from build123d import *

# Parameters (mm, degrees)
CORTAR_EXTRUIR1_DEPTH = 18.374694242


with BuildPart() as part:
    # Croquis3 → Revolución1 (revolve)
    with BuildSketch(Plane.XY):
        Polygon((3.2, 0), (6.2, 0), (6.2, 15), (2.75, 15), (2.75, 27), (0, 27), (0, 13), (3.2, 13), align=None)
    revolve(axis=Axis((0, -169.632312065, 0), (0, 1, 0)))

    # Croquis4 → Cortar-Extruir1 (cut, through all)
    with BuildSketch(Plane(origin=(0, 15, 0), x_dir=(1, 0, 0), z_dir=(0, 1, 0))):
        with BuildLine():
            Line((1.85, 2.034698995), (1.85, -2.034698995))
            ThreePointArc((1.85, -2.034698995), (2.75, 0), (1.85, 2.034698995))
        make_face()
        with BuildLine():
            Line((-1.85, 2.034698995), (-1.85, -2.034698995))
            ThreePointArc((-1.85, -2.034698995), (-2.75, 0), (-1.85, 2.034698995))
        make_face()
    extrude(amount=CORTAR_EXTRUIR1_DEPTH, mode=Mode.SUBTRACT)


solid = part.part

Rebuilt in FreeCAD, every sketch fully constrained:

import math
import FreeCAD as App
import Part
import Sketcher

V = App.Vector

doc = App.newDocument("Part")
params = doc.addObject("Spreadsheet::Sheet", "Params")
for row, (alias, value) in enumerate([
    ("sketch1_width", "3 mm"),
    ("sketch1_height", "15 mm"),
    ("sketch1_height2", "12 mm"),
    ("sketch1_height3", "14 mm"),
    ("sketch1_width2", "3.2 mm"),
    ("revolution_angle", "360 deg"),
    ("sketch2_radius", "2.75 mm"),
], start=1):
    params.set(f"A{row}", alias)
    params.set(f"B{row}", "=" + value)
    params.setAlias(f"B{row}", alias)

body = doc.addObject("PartDesign::Body", "Body")

# Sketch on XY plane
sketch1 = doc.addObject("Sketcher::SketchObject", "Sketch")
body.addObject(sketch1)
sketch1.AttachmentSupport = (doc.XY_Plane, [""])
sketch1.MapMode = "FlatFace"
sketch1.addGeometry(Part.LineSegment(V(3.2, 0, 0), V(6.2, 0, 0)), False)
sketch1.addGeometry(Part.LineSegment(V(6.2, 0, 0), V(6.2, 15, 0)), False)
sketch1.addGeometry(Part.LineSegment(V(6.2, 15, 0), V(2.75, 15, 0)), False)
sketch1.addGeometry(Part.LineSegment(V(2.75, 15, 0), V(2.75, 27, 0)), False)
sketch1.addGeometry(Part.LineSegment(V(2.75, 27, 0), V(0, 27, 0)), False)
sketch1.addGeometry(Part.LineSegment(V(0, 27, 0), V(0, 13, 0)), False)
sketch1.addGeometry(Part.LineSegment(V(0, 13, 0), V(3.2, 13, 0)), False)
sketch1.addGeometry(Part.LineSegment(V(3.2, 13, 0), V(3.2, 0, 0)), False)
sketch1.addConstraint(Sketcher.Constraint("Coincident", 0, 2, 1, 1))
sketch1.addConstraint(Sketcher.Constraint("Coincident", 1, 2, 2, 1))
sketch1.addConstraint(Sketcher.Constraint("Coincident", 2, 2, 3, 1))
sketch1.addConstraint(Sketcher.Constraint("Coincident", 3, 2, 4, 1))
sketch1.addConstraint(Sketcher.Constraint("Coincident", 4, 2, 5, 1))
sketch1.addConstraint(Sketcher.Constraint("Coincident", 5, 2, 6, 1))
sketch1.addConstraint(Sketcher.Constraint("Coincident", 6, 2, 7, 1))
sketch1.addConstraint(Sketcher.Constraint("Coincident", 7, 2, 0, 1))
sketch1.addConstraint(Sketcher.Constraint("Horizontal", 0))
sketch1.addConstraint(Sketcher.Constraint("Vertical", 1))
sketch1.addConstraint(Sketcher.Constraint("Horizontal", 2))
sketch1.addConstraint(Sketcher.Constraint("Vertical", 3))
sketch1.addConstraint(Sketcher.Constraint("Horizontal", 4))
sketch1.addConstraint(Sketcher.Constraint("Vertical", 5))
sketch1.addConstraint(Sketcher.Constraint("Horizontal", 6))
sketch1.addConstraint(Sketcher.Constraint("Vertical", 7))
sketch1.addConstraint(Sketcher.Constraint("PointOnObject", 0, 2, -1))
sketch1.addConstraint(Sketcher.Constraint("PointOnObject", 4, 2, -2))
sketch1.addConstraint(Sketcher.Constraint("DistanceX", 0, 1, 0, 2, 3.0))
sketch1.addConstraint(Sketcher.Constraint("DistanceY", 1, 1, 1, 2, 15.0))
sketch1.addConstraint(Sketcher.Constraint("DistanceY", 3, 1, 3, 2, 12.0))
sketch1.addConstraint(Sketcher.Constraint("DistanceY", 5, 2, 5, 1, 14.0))
sketch1.addConstraint(Sketcher.Constraint("DistanceX", 6, 1, 6, 2, 3.2))
sketch1.addConstraint(Sketcher.Constraint("DistanceX", 2, 2, 2, 1, 3.45))
sketch1.setExpression("Constraints[18]", "Params.sketch1_width")
sketch1.setExpression("Constraints[19]", "Params.sketch1_height")
sketch1.setExpression("Constraints[20]", "Params.sketch1_height2")
sketch1.setExpression("Constraints[21]", "Params.sketch1_height3")
sketch1.setExpression("Constraints[22]", "Params.sketch1_width2")
revolution = doc.addObject("PartDesign::Revolution", "Revolution")
body.addObject(revolution)
revolution.Profile = sketch1
revolution.ReferenceAxis = (sketch1, ["V_Axis"])
revolution.setExpression("Angle", "Params.revolution_angle")

# Sketch on XZ plane
sketch2 = doc.addObject("Sketcher::SketchObject", "Sketch001")
body.addObject(sketch2)
sketch2.AttachmentSupport = (doc.XZ_Plane, [""])
sketch2.MapMode = "FlatFace"
sketch2.AttachmentOffset = App.Placement(V(0, 0, -15), App.Rotation())
sketch2.addGeometry(Part.LineSegment(V(1.85, -2.034699, 0), V(1.85, 2.034699, 0)), False)
sketch2.addGeometry(Part.ArcOfCircle(Part.Circle(V(0, 0, 0), V(0, 0, 1), 2.75), math.radians(-47.722092), math.radians(47.722092)), False)
sketch2.addGeometry(Part.LineSegment(V(-1.85, 2.034699, 0), V(-1.85, -2.034699, 0)), False)
sketch2.addGeometry(Part.ArcOfCircle(Part.Circle(V(0, 0, 0), V(0, 0, 1), 2.75), math.radians(132.277908), math.radians(227.722092)), False)
sketch2.addConstraint(Sketcher.Constraint("Coincident", 0, 1, 1, 1))
sketch2.addConstraint(Sketcher.Constraint("Coincident", 1, 2, 0, 2))
sketch2.addConstraint(Sketcher.Constraint("Coincident", 2, 1, 3, 1))
sketch2.addConstraint(Sketcher.Constraint("Coincident", 3, 2, 2, 2))
sketch2.addConstraint(Sketcher.Constraint("Vertical", 0))
sketch2.addConstraint(Sketcher.Constraint("Vertical", 2))
sketch2.addConstraint(Sketcher.Constraint("Coincident", 1, 3, -1, 1))
sketch2.addConstraint(Sketcher.Constraint("Coincident", 3, 3, -1, 1))
sketch2.addConstraint(Sketcher.Constraint("Equal", 1, 3))
sketch2.addConstraint(Sketcher.Constraint("Horizontal", 1, 2, 2, 1))
sketch2.addConstraint(Sketcher.Constraint("Radius", 1, 2.75))
sketch2.addConstraint(Sketcher.Constraint("DistanceX", 2, 1, 1, 2, 3.7))
sketch2.setExpression("Constraints[10]", "Params.sketch2_radius")
pocket1 = doc.addObject("PartDesign::Pocket", "Pocket")
body.addObject(pocket1)
pocket1.Profile = sketch2
pocket1.Type = "ThroughAll"

doc.recompute()
